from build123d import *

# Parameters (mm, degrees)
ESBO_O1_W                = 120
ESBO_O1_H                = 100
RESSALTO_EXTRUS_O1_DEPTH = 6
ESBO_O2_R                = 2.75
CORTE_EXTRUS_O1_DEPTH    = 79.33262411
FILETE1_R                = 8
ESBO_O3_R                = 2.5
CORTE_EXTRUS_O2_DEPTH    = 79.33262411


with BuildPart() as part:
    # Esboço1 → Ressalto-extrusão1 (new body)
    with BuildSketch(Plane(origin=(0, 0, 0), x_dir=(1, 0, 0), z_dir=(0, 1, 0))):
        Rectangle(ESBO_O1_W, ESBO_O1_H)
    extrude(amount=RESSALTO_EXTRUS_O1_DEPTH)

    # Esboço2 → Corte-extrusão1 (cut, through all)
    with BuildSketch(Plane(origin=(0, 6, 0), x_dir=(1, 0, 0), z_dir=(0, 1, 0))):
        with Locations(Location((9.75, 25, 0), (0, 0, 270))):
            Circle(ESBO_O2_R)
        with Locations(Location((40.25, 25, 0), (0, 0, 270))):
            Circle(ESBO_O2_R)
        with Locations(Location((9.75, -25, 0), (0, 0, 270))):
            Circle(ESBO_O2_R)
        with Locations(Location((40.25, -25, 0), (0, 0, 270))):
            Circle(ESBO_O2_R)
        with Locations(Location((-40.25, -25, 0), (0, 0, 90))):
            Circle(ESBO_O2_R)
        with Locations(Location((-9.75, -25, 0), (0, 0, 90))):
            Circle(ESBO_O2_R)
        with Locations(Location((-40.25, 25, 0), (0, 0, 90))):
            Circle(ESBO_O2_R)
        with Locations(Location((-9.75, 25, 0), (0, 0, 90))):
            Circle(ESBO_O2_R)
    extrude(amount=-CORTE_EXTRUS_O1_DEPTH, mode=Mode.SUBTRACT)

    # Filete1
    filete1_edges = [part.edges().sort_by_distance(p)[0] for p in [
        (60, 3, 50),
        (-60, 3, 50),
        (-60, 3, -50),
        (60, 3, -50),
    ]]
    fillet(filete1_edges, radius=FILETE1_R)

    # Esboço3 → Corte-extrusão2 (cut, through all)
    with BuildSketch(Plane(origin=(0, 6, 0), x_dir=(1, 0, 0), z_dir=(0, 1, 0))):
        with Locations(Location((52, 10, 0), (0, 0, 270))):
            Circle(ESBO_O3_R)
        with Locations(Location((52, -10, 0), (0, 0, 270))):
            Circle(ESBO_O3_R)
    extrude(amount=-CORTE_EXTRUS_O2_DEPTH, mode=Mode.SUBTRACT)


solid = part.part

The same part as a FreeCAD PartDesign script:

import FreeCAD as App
import Part
import Sketcher


def edges_at(feature, points):
    """Names of the edges that pass closest to the given points."""
    edges = feature.Shape.Edges
    near = lambda p: min(range(len(edges)), key=lambda i: edges[i].distToShape(Part.Vertex(*p))[0])
    return sorted({f"Edge{near(p) + 1}" for p in points})

doc = App.newDocument("Part")
body = doc.addObject("PartDesign::Body", "Body")

sketch1 = body.newObject("Sketcher::SketchObject", "Sketch")
sketch1.AttachmentSupport = (doc.getObject("XZ_Plane"), [""])
sketch1.MapMode = "FlatFace"
sketch1.addGeometry([
    Part.LineSegment(App.Vector(-60, -50, 0), App.Vector(-60, 50, 0)),
    Part.LineSegment(App.Vector(-60, 50, 0), App.Vector(60, 50, 0)),
    Part.LineSegment(App.Vector(60, 50, 0), App.Vector(60, -50, 0)),
    Part.LineSegment(App.Vector(60, -50, 0), App.Vector(-60, -50, 0)),
], False)
sketch1.addConstraint([
    Sketcher.Constraint("Coincident", 0, 2, 1, 1),
    Sketcher.Constraint("Coincident", 1, 2, 2, 1),
    Sketcher.Constraint("Coincident", 2, 2, 3, 1),
    Sketcher.Constraint("Coincident", 3, 2, 0, 1),
    Sketcher.Constraint("Vertical", 0),
    Sketcher.Constraint("Horizontal", 1),
    Sketcher.Constraint("Vertical", 2),
    Sketcher.Constraint("Horizontal", 3),
    Sketcher.Constraint("Symmetric", 0, 2, 2, 2, -1, 1),
    Sketcher.Constraint("DistanceX", 1, 1, 1, 2, 120.0),
    Sketcher.Constraint("DistanceY", 0, 1, 0, 2, 100.0),
])
pad1 = body.newObject("PartDesign::Pad", "Pad")
pad1.Profile = sketch1
pad1.Length = 6
pad1.Reversed = True

sketch2 = body.newObject("Sketcher::SketchObject", "Sketch001")
sketch2.AttachmentSupport = (doc.getObject("XZ_Plane"), [""])
sketch2.MapMode = "FlatFace"
sketch2.AttachmentOffset = App.Placement(App.Vector(0, 0, -6), App.Rotation())
sketch2.addGeometry([
    Part.Circle(App.Vector(9.8, -25, 0), App.Vector(0, 0, 1), 2.8),
    Part.Circle(App.Vector(40.2, -25, 0), App.Vector(0, 0, 1), 2.8),
    Part.Circle(App.Vector(9.8, 25, 0), App.Vector(0, 0, 1), 2.8),
    Part.Circle(App.Vector(40.2, 25, 0), App.Vector(0, 0, 1), 2.8),
    Part.Circle(App.Vector(-40.2, 25, 0), App.Vector(0, 0, 1), 2.8),
    Part.Circle(App.Vector(-9.8, 25, 0), App.Vector(0, 0, 1), 2.8),
    Part.Circle(App.Vector(-40.2, -25, 0), App.Vector(0, 0, 1), 2.8),
    Part.Circle(App.Vector(-9.8, -25, 0), App.Vector(0, 0, 1), 2.8),
], False)
sketch2.addConstraint([
    Sketcher.Constraint("Equal", 0, 1),
    Sketcher.Constraint("Equal", 1, 2),
    Sketcher.Constraint("Equal", 2, 3),
    Sketcher.Constraint("Equal", 3, 4),
    Sketcher.Constraint("Equal", 4, 5),
    Sketcher.Constraint("Equal", 5, 6),
    Sketcher.Constraint("Equal", 6, 7),
    Sketcher.Constraint("Symmetric", 1, 3, 4, 3, -1, 1),
    Sketcher.Constraint("Symmetric", 0, 3, 5, 3, -1, 1),
    Sketcher.Constraint("Symmetric", 3, 3, 6, 3, -1, 1),
    Sketcher.Constraint("Symmetric", 2, 3, 7, 3, -1, 1),
    Sketcher.Constraint("Symmetric", 3, 3, 4, 3, -2),
    Sketcher.Constraint("Symmetric", 2, 3, 5, 3, -2),
    Sketcher.Constraint("Horizontal", 0, 3, 1, 3),
    Sketcher.Constraint("Diameter", 0, 5.5),
    Sketcher.Constraint("DistanceY", 0, 3, -1, 1, 25.0),
    Sketcher.Constraint("DistanceX", 4, 3, 2, 3, 50.0),
    Sketcher.Constraint("DistanceX", 0, 3, 1, 3, 30.5),
])
pocket1 = body.newObject("PartDesign::Pocket", "Pocket")
pocket1.Profile = sketch2
pocket1.Type = "ThroughAll"
pocket1.Reversed = True
doc.recompute()

fillet = body.newObject("PartDesign::Fillet", "Fillet")
fillet.Base = (pocket1, edges_at(pocket1, [
    (60, 3, 50),
    (-60, 3, 50),
    (-60, 3, -50),
    (60, 3, -50),
]))
fillet.Radius = 8

sketch3 = body.newObject("Sketcher::SketchObject", "Sketch002")
sketch3.AttachmentSupport = (doc.getObject("XZ_Plane"), [""])
sketch3.MapMode = "FlatFace"
sketch3.AttachmentOffset = App.Placement(App.Vector(0, 0, -6), App.Rotation())
sketch3.addGeometry([
    Part.Circle(App.Vector(52, -10, 0), App.Vector(0, 0, 1), 2.5),
    Part.Circle(App.Vector(52, 10, 0), App.Vector(0, 0, 1), 2.5),
], False)
sketch3.addConstraint([
    Sketcher.Constraint("Equal", 0, 1),
    Sketcher.Constraint("Symmetric", 0, 3, 1, 3, -1),
    Sketcher.Constraint("Diameter", 0, 5.0),
    Sketcher.Constraint("DistanceX", -1, 1, 0, 3, 52.0),
    Sketcher.Constraint("DistanceY", 0, 3, -1, 1, 10.0),
])
pocket2 = body.newObject("PartDesign::Pocket", "Pocket001")
pocket2.Profile = sketch3
pocket2.Type = "ThroughAll"
pocket2.Reversed = True

doc.recompute()
